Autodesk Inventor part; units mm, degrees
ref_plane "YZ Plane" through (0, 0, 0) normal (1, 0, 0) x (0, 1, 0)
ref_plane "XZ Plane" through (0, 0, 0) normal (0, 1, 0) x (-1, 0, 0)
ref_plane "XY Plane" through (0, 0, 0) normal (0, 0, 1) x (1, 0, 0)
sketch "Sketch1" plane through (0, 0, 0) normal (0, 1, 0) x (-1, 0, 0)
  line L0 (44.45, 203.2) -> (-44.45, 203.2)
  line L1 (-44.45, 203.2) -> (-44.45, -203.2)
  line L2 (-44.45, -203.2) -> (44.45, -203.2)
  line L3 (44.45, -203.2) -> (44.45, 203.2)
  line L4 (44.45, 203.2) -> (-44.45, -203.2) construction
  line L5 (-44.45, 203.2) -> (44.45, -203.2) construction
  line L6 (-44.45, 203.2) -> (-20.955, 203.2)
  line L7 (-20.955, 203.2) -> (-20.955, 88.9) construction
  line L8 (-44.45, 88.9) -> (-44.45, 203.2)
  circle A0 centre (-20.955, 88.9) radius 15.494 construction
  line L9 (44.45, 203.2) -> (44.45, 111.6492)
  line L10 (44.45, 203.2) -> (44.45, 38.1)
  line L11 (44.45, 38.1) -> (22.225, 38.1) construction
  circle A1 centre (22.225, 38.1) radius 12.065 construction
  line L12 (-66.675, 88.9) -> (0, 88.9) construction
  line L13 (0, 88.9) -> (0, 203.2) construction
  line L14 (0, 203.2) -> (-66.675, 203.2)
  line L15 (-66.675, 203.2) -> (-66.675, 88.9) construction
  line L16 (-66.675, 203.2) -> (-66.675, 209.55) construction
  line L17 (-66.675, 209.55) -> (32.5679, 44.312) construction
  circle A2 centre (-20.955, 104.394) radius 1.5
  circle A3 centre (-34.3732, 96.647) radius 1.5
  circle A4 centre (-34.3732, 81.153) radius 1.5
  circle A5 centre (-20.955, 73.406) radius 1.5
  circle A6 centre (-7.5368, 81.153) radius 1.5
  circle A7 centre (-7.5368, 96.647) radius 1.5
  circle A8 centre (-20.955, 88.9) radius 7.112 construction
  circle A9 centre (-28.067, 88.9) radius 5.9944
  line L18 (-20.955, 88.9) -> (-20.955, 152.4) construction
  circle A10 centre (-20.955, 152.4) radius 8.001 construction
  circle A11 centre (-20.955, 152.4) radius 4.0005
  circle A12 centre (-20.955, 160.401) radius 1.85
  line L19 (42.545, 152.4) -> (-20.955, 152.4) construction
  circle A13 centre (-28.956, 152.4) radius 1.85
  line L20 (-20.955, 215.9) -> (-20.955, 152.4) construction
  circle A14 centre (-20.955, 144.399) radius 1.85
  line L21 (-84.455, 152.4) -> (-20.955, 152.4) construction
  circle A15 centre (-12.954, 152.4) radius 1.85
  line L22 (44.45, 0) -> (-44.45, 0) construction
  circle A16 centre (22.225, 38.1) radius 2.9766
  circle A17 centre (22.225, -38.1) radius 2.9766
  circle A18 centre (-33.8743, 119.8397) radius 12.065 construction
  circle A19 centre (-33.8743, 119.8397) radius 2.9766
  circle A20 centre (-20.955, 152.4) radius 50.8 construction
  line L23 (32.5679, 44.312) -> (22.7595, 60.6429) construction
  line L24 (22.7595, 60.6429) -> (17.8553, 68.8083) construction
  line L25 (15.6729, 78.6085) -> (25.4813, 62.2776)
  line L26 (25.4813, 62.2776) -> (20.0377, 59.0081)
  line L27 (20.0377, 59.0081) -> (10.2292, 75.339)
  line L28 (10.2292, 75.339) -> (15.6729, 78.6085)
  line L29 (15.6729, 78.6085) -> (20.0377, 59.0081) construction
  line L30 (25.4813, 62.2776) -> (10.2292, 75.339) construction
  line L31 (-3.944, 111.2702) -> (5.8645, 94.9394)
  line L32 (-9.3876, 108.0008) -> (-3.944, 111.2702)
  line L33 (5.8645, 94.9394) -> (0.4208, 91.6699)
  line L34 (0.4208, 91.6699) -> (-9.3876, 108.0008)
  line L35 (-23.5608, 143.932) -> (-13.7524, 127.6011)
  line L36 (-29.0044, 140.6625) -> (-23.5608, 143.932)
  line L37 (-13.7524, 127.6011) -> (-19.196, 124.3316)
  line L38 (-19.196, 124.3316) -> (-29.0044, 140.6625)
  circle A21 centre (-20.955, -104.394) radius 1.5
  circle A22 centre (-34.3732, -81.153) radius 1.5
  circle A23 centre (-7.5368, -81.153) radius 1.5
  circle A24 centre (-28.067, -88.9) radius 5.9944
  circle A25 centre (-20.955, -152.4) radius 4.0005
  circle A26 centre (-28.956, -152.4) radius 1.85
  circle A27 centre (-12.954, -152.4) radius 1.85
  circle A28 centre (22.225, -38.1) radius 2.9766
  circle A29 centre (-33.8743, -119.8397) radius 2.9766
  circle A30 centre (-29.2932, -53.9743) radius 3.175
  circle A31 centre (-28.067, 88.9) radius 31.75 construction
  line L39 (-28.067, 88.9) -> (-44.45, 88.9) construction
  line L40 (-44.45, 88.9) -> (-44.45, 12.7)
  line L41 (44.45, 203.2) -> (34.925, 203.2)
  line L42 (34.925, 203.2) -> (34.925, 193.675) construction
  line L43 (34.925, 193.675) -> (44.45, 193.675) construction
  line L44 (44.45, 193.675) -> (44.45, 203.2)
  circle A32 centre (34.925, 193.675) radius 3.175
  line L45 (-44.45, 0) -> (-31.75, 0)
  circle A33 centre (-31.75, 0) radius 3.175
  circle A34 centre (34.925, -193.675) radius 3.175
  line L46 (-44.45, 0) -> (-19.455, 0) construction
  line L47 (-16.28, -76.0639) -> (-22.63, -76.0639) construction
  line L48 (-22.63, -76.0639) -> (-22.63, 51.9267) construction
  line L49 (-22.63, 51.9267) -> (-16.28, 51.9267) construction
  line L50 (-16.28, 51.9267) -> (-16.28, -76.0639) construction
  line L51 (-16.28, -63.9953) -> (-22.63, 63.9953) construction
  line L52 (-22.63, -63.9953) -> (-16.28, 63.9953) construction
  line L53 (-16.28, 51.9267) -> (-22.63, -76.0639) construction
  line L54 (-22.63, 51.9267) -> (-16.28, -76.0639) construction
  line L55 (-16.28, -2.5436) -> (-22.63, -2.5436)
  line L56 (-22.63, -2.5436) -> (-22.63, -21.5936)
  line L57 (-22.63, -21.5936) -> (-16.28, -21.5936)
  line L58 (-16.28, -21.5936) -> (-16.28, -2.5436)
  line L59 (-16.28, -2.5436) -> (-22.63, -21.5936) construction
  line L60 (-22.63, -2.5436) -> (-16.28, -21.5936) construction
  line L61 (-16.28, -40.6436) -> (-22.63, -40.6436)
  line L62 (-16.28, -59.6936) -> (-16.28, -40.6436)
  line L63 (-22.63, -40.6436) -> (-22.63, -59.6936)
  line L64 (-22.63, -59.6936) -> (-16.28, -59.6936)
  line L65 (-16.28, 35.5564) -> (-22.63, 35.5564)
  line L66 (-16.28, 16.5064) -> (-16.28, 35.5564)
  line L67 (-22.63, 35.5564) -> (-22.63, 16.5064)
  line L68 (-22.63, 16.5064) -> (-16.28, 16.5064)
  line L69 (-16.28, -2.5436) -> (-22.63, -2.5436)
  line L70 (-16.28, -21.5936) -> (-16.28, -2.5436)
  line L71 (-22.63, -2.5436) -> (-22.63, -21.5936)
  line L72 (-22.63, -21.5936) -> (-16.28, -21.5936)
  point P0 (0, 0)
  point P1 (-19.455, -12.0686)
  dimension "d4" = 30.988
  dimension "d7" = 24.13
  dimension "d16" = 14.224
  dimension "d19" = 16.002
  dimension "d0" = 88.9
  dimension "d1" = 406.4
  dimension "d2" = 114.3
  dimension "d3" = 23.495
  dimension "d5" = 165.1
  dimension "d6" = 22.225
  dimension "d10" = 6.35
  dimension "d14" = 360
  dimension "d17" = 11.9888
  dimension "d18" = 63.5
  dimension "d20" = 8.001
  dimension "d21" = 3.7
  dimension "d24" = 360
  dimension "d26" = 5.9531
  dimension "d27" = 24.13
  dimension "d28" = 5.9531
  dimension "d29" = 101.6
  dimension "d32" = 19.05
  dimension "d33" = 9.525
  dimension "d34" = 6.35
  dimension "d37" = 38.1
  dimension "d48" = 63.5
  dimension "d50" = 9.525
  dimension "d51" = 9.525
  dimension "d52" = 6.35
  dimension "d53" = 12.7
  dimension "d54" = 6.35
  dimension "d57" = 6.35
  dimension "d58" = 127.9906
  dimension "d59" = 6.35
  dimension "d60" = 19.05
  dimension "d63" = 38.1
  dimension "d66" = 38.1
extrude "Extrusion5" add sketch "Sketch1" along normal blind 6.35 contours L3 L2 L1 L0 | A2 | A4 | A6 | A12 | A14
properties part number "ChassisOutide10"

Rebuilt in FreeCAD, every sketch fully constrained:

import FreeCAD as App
import Part
import Sketcher
Q = App.Units.Quantity

doc = App.newDocument("Part")
body = doc.addObject("PartDesign::Body", "Body")

# Sketch on XZ plane
sketch1 = body.newObject("Sketcher::SketchObject", "Sketch")
sketch1.AttachmentSupport = (doc.getObject("XZ_Plane"), [""])
sketch1.MapMode = "FlatFace"
sketch1.addGeometry(Part.LineSegment(App.Vector(-44.5, 203.2, 0), App.Vector(44.5, 203.2, 0)), False)
sketch1.addGeometry(Part.LineSegment(App.Vector(44.5, 203.2, 0), App.Vector(44.5, 0, 0)), False)
sketch1.addGeometry(Part.LineSegment(App.Vector(44.5, 0, 0), App.Vector(44.5, -203.2, 0)), False)
sketch1.addGeometry(Part.LineSegment(App.Vector(44.5, -203.2, 0), App.Vector(-44.5, -203.2, 0)), False)
sketch1.addGeometry(Part.LineSegment(App.Vector(-44.5, -203.2, 0), App.Vector(-44.5, 203.2, 0)), False)
sketch1.addGeometry(Part.Circle(App.Vector(29, -152.4, 0), App.Vector(0, 0, 1), 1.9), False)
sketch1.addGeometry(Part.Circle(App.Vector(33.9, -119.8, 0), App.Vector(0, 0, 1), 3), False)
sketch1.addGeometry(Part.Circle(App.Vector(21, -152.4, 0), App.Vector(0, 0, 1), 4), False)
sketch1.addGeometry(Part.Circle(App.Vector(13, -152.4, 0), App.Vector(0, 0, 1), 1.9), False)
sketch1.addGeometry(Part.Circle(App.Vector(21, -104.4, 0), App.Vector(0, 0, 1), 1.5), False)
sketch1.addGeometry(Part.Circle(App.Vector(34.4, -81.2, 0), App.Vector(0, 0, 1), 1.5), False)
sketch1.addGeometry(Part.Circle(App.Vector(28.1, -88.9, 0), App.Vector(0, 0, 1), 6), False)
sketch1.addGeometry(Part.Circle(App.Vector(29.3, -54, 0), App.Vector(0, 0, 1), 3.2), False)
sketch1.addGeometry(Part.Circle(App.Vector(31.8, 0, 0), App.Vector(0, 0, 1), 3.2), False)
sketch1.addGeometry(Part.Circle(App.Vector(7.5, -81.2, 0), App.Vector(0, 0, 1), 1.5), False)
sketch1.addGeometry(Part.LineSegment(App.Vector(22.6, -40.6, 0), App.Vector(16.3, -40.6, 0)), False)
sketch1.addGeometry(Part.LineSegment(App.Vector(16.3, -40.6, 0), App.Vector(16.3, -59.7, 0)), False)
sketch1.addGeometry(Part.LineSegment(App.Vector(16.3, -59.7, 0), App.Vector(22.6, -59.7, 0)), False)
sketch1.addGeometry(Part.LineSegment(App.Vector(22.6, -59.7, 0), App.Vector(22.6, -40.6, 0)), False)
sketch1.addGeometry(Part.LineSegment(App.Vector(22.6, -2.5, 0), App.Vector(16.3, -2.5, 0)), False)
sketch1.addGeometry(Part.LineSegment(App.Vector(16.3, -2.5, 0), App.Vector(16.3, -21.6, 0)), False)
sketch1.addGeometry(Part.LineSegment(App.Vector(16.3, -21.6, 0), App.Vector(22.6, -21.6, 0)), False)
sketch1.addGeometry(Part.LineSegment(App.Vector(22.6, -21.6, 0), App.Vector(22.6, -2.5, 0)), False)
sketch1.addGeometry(Part.Circle(App.Vector(-34.9, -193.7, 0), App.Vector(0, 0, 1), 3.2), False)
sketch1.addGeometry(Part.Circle(App.Vector(-22.2, -38.1, 0), App.Vector(0, 0, 1), 3), False)
sketch1.addGeometry(Part.Circle(App.Vector(34.4, 96.6, 0), App.Vector(0, 0, 1), 1.5), False)
sketch1.addGeometry(Part.Circle(App.Vector(28.1, 88.9, 0), App.Vector(0, 0, 1), 6), False)
sketch1.addGeometry(Part.LineSegment(App.Vector(22.6, 35.6, 0), App.Vector(16.3, 35.6, 0)), False)
sketch1.addGeometry(Part.LineSegment(App.Vector(16.3, 35.6, 0), App.Vector(16.3, 16.5, 0)), False)
sketch1.addGeometry(Part.LineSegment(App.Vector(16.3, 16.5, 0), App.Vector(22.6, 16.5, 0)), False)
sketch1.addGeometry(Part.LineSegment(App.Vector(22.6, 16.5, 0), App.Vector(22.6, 35.6, 0)), False)
sketch1.addGeometry(Part.Circle(App.Vector(21, 73.4, 0), App.Vector(0, 0, 1), 1.5), False)
sketch1.addGeometry(Part.Circle(App.Vector(7.5, 96.6, 0), App.Vector(0, 0, 1), 1.5), False)
sketch1.addGeometry(Part.LineSegment(App.Vector(9.4, 108, 0), App.Vector(3.9, 111.3, 0)), False)
sketch1.addGeometry(Part.LineSegment(App.Vector(3.9, 111.3, 0), App.Vector(-5.9, 94.9, 0)), False)
sketch1.addGeometry(Part.LineSegment(App.Vector(-5.9, 94.9, 0), App.Vector(-0.4, 91.7, 0)), False)
sketch1.addGeometry(Part.LineSegment(App.Vector(-0.4, 91.7, 0), App.Vector(9.4, 108, 0)), False)
sketch1.addGeometry(Part.Circle(App.Vector(33.9, 119.8, 0), App.Vector(0, 0, 1), 3), False)
sketch1.addGeometry(Part.Circle(App.Vector(29, 152.4, 0), App.Vector(0, 0, 1), 1.9), False)
sketch1.addGeometry(Part.LineSegment(App.Vector(29, 140.7, 0), App.Vector(23.6, 143.9, 0)), False)
sketch1.addGeometry(Part.LineSegment(App.Vector(23.6, 143.9, 0), App.Vector(13.8, 127.6, 0)), False)
sketch1.addGeometry(Part.LineSegment(App.Vector(13.8, 127.6, 0), App.Vector(19.2, 124.3, 0)), False)
sketch1.addGeometry(Part.LineSegment(App.Vector(19.2, 124.3, 0), App.Vector(29, 140.7, 0)), False)
sketch1.addGeometry(Part.Circle(App.Vector(21, 152.4, 0), App.Vector(0, 0, 1), 4), False)
sketch1.addGeometry(Part.Circle(App.Vector(13, 152.4, 0), App.Vector(0, 0, 1), 1.9), False)
sketch1.addGeometry(Part.LineSegment(App.Vector(-10.2, 75.3, 0), App.Vector(-15.7, 78.6, 0)), False)
sketch1.addGeometry(Part.LineSegment(App.Vector(-15.7, 78.6, 0), App.Vector(-25.5, 62.3, 0)), False)
sketch1.addGeometry(Part.LineSegment(App.Vector(-25.5, 62.3, 0), App.Vector(-20, 59, 0)), False)
sketch1.addGeometry(Part.LineSegment(App.Vector(-20, 59, 0), App.Vector(-10.2, 75.3, 0)), False)
sketch1.addGeometry(Part.Circle(App.Vector(-22.2, 38.1, 0), App.Vector(0, 0, 1), 3), False)
sketch1.addGeometry(Part.Circle(App.Vector(-34.9, 193.7, 0), App.Vector(0, 0, 1), 3.2), False)
sketch1.addConstraint(Sketcher.Constraint("Coincident", 0, 2, 1, 1))
sketch1.addConstraint(Sketcher.Constraint("Coincident", 1, 2, 2, 1))
sketch1.addConstraint(Sketcher.Constraint("Coincident", 2, 2, 3, 1))
sketch1.addConstraint(Sketcher.Constraint("Coincident", 3, 2, 4, 1))
sketch1.addConstraint(Sketcher.Constraint("Coincident", 4, 2, 0, 1))
sketch1.addConstraint(Sketcher.Constraint("Coincident", 15, 2, 16, 1))
sketch1.addConstraint(Sketcher.Constraint("Coincident", 16, 2, 17, 1))
sketch1.addConstraint(Sketcher.Constraint("Coincident", 17, 2, 18, 1))
sketch1.addConstraint(Sketcher.Constraint("Coincident", 18, 2, 15, 1))
sketch1.addConstraint(Sketcher.Constraint("Coincident", 19, 2, 20, 1))
sketch1.addConstraint(Sketcher.Constraint("Coincident", 20, 2, 21, 1))
sketch1.addConstraint(Sketcher.Constraint("Coincident", 21, 2, 22, 1))
sketch1.addConstraint(Sketcher.Constraint("Coincident", 22, 2, 19, 1))
sketch1.addConstraint(Sketcher.Constraint("Coincident", 27, 2, 28, 1))
sketch1.addConstraint(Sketcher.Constraint("Coincident", 28, 2, 29, 1))
sketch1.addConstraint(Sketcher.Constraint("Coincident", 29, 2, 30, 1))
sketch1.addConstraint(Sketcher.Constraint("Coincident", 30, 2, 27, 1))
sketch1.addConstraint(Sketcher.Constraint("Coincident", 33, 2, 34, 1))
sketch1.addConstraint(Sketcher.Constraint("Coincident", 34, 2, 35, 1))
sketch1.addConstraint(Sketcher.Constraint("Coincident", 35, 2, 36, 1))
sketch1.addConstraint(Sketcher.Constraint("Coincident", 36, 2, 33, 1))
sketch1.addConstraint(Sketcher.Constraint("Coincident", 39, 2, 40, 1))
sketch1.addConstraint(Sketcher.Constraint("Coincident", 40, 2, 41, 1))
sketch1.addConstraint(Sketcher.Constraint("Coincident", 41, 2, 42, 1))
sketch1.addConstraint(Sketcher.Constraint("Coincident", 42, 2, 39, 1))
sketch1.addConstraint(Sketcher.Constraint("Coincident", 45, 2, 46, 1))
sketch1.addConstraint(Sketcher.Constraint("Coincident", 46, 2, 47, 1))
sketch1.addConstraint(Sketcher.Constraint("Coincident", 47, 2, 48, 1))
sketch1.addConstraint(Sketcher.Constraint("Coincident", 48, 2, 45, 1))
sketch1.addConstraint(Sketcher.Constraint("Horizontal", 0))
sketch1.addConstraint(Sketcher.Constraint("Vertical", 1))
sketch1.addConstraint(Sketcher.Constraint("Vertical", 2))
sketch1.addConstraint(Sketcher.Constraint("Horizontal", 3))
sketch1.addConstraint(Sketcher.Constraint("Vertical", 4))
sketch1.addConstraint(Sketcher.Constraint("Horizontal", 15))
sketch1.addConstraint(Sketcher.Constraint("Vertical", 16))
sketch1.addConstraint(Sketcher.Constraint("Horizontal", 17))
sketch1.addConstraint(Sketcher.Constraint("Vertical", 18))
sketch1.addConstraint(Sketcher.Constraint("Horizontal", 19))
sketch1.addConstraint(Sketcher.Constraint("Vertical", 20))
sketch1.addConstraint(Sketcher.Constraint("Horizontal", 21))
sketch1.addConstraint(Sketcher.Constraint("Vertical", 22))
sketch1.addConstraint(Sketcher.Constraint("Horizontal", 27))
sketch1.addConstraint(Sketcher.Constraint("Vertical", 28))
sketch1.addConstraint(Sketcher.Constraint("Horizontal", 29))
sketch1.addConstraint(Sketcher.Constraint("Vertical", 30))
sketch1.addConstraint(Sketcher.Constraint("Equal", 5, 8))
sketch1.addConstraint(Sketcher.Constraint("Equal", 9, 10))
sketch1.addConstraint(Sketcher.Constraint("Equal", 12, 13))
sketch1.addConstraint(Sketcher.Constraint("Equal", 10, 14))
sketch1.addConstraint(Sketcher.Constraint("Equal", 13, 23))
sketch1.addConstraint(Sketcher.Constraint("Equal", 6, 24))
sketch1.addConstraint(Sketcher.Constraint("Equal", 14, 25))
sketch1.addConstraint(Sketcher.Constraint("Equal", 11, 26))
sketch1.addConstraint(Sketcher.Constraint("Equal", 25, 31))
sketch1.addConstraint(Sketcher.Constraint("Equal", 31, 32))
sketch1.addConstraint(Sketcher.Constraint("Equal", 24, 37))
sketch1.addConstraint(Sketcher.Constraint("Equal", 8, 38))
sketch1.addConstraint(Sketcher.Constraint("Equal", 7, 43))
sketch1.addConstraint(Sketcher.Constraint("Equal", 38, 44))
sketch1.addConstraint(Sketcher.Constraint("Equal", 37, 49))
sketch1.addConstraint(Sketcher.Constraint("Equal", 23, 50))
sketch1.addConstraint(Sketcher.Constraint("Symmetric", 0, 2, 3, 2, -1, 1))
sketch1.addConstraint(Sketcher.Constraint("Symmetric", 11, 3, 26, 3, -1))
sketch1.addConstraint(Sketcher.Constraint("Symmetric", 6, 3, 37, 3, -1))
sketch1.addConstraint(Sketcher.Constraint("Symmetric", 5, 3, 38, 3, -1))
sketch1.addConstraint(Sketcher.Constraint("Symmetric", 7, 3, 43, 3, -1))
sketch1.addConstraint(Sketcher.Constraint("Symmetric", 8, 3, 44, 3, -1))
sketch1.addConstraint(Sketcher.Constraint("Symmetric", 24, 3, 49, 3, -1))
sketch1.addConstraint(Sketcher.Constraint("Symmetric", 23, 3, 50, 3, -1))
sketch1.addConstraint(Sketcher.Constraint("PointOnObject", 13, 3, -1))
sketch1.addConstraint(Sketcher.Constraint("PointOnObject", 1, 2, -1))
sketch1.addConstraint(Sketcher.Constraint("Perpendicular", 33, 34))
sketch1.addConstraint(Sketcher.Constraint("Perpendicular", 34, 35))
sketch1.addConstraint(Sketcher.Constraint("Perpendicular", 35, 36))
sketch1.addConstraint(Sketcher.Constraint("Perpendicular", 36, 39))
sketch1.addConstraint(Sketcher.Constraint("Perpendicular", 39, 40))
sketch1.addConstraint(Sketcher.Constraint("Perpendicular", 40, 41))
sketch1.addConstraint(Sketcher.Constraint("Perpendicular", 41, 42))
sketch1.addConstraint(Sketcher.Constraint("Perpendicular", 42, 45))
sketch1.addConstraint(Sketcher.Constraint("Perpendicular", 45, 46))
sketch1.addConstraint(Sketcher.Constraint("Perpendicular", 46, 47))
sketch1.addConstraint(Sketcher.Constraint("Perpendicular", 47, 48))
sketch1.addConstraint(Sketcher.Constraint("Horizontal", 5, 3, 7, 3))
sketch1.addConstraint(Sketcher.Constraint("Horizontal", 7, 3, 8, 3))
sketch1.addConstraint(Sketcher.Constraint("Horizontal", 10, 3, 14, 3))
sketch1.addConstraint(Sketcher.Constraint("Horizontal", 25, 3, 32, 3))
sketch1.addConstraint(Sketcher.Constraint("Vertical", 7, 3, 9, 3))
sketch1.addConstraint(Sketcher.Constraint("Vertical", 10, 3, 25, 3))
sketch1.addConstraint(Sketcher.Constraint("Vertical", 9, 3, 31, 3))
sketch1.addConstraint(Sketcher.Constraint("Vertical", 14, 3, 32, 3))
sketch1.addConstraint(Sketcher.Constraint("Vertical", 16, 2, 19, 2))
sketch1.addConstraint(Sketcher.Constraint("Vertical", 18, 2, 21, 2))
sketch1.addConstraint(Sketcher.Constraint("Vertical", 20, 2, 27, 2))
sketch1.addConstraint(Sketcher.Constraint("Vertical", 22, 2, 29, 2))
sketch1.addConstraint(Sketcher.Constraint("Equal", 18, 20))
sketch1.addConstraint(Sketcher.Constraint("Equal", 22, 28))
sketch1.addConstraint(Sketcher.Constraint("Equal", 35, 39))
sketch1.addConstraint(Sketcher.Constraint("Equal", 36, 40))
sketch1.addConstraint(Sketcher.Constraint("Equal", 41, 45))
sketch1.addConstraint(Sketcher.Constraint("Equal", 42, 46))
sketch1.addConstraint(Sketcher.Constraint("Diameter", 12, Q("0.25 in")))
sketch1.addConstraint(Sketcher.Constraint("DistanceY", 4, 1, 4, 2, Q("16 in")))
sketch1.addConstraint(Sketcher.Constraint("Diameter", 6, Q("0.234378 in")))
sketch1.addConstraint(Sketcher.Constraint("Diameter", 7, Q("0.315 in")))
sketch1.addConstraint(Sketcher.Constraint("Diameter", 11, Q("0.472 in")))
sketch1.addConstraint(Sketcher.Constraint("DistanceX", 0, 1, 0, 2, Q("3.5 in")))
sketch1.addConstraint(Sketcher.Constraint("DistanceX", 15, 2, 15, 1, Q("0.25 in")))
sketch1.addConstraint(Sketcher.Constraint("DistanceY", 16, 2, 16, 1, Q("0.75 in")))
sketch1.addConstraint(Sketcher.Constraint("DistanceY", 11, 3, -1, 1, Q("3.5 in")))
sketch1.addConstraint(Sketcher.Constraint("DistanceY", 24, 3, -1, 1, Q("1.5 in")))
sketch1.addConstraint(Sketcher.Constraint("DistanceY", 5, 3, 11, 3, Q("2.5 in")))
sketch1.addConstraint(Sketcher.Constraint("DistanceX", 13, 3, 1, 2, Q("0.5 in")))
sketch1.addConstraint(Sketcher.Constraint("DistanceY", 15, 2, 19, 2, Q("1.5 in")))
sketch1.addConstraint(Sketcher.Constraint("DistanceY", 19, 2, 27, 2, Q("1.5 in")))
sketch1.addConstraint(Sketcher.Constraint("Distance", 33, Q("0.25 in")))
sketch1.addConstraint(Sketcher.Constraint("Distance", 34, Q("0.75 in")))
sketch1.addConstraint(Sketcher.Constraint("Diameter", 5, Q("3.7 mm")))
sketch1.addConstraint(Sketcher.Constraint("DistanceX", 8, 3, 5, 3, Q("0.63 in")))
sketch1.addConstraint(Sketcher.Constraint("DistanceX", 24, 3, -1, 1, Q("0.875 in")))
sketch1.addConstraint(Sketcher.Constraint("DistanceX", 7, 3, 5, 3, Q("0.315 in")))
sketch1.addConstraint(Sketcher.Constraint("DistanceY", 10, 3, 25, 3, Q("7 in")))
sketch1.addConstraint(Sketcher.Constraint("DistanceX", 43, 3, 0, 2, Q("0.925 in")))
sketch1.addConstraint(Sketcher.Constraint("DistanceY", 50, 3, 0, 2, Q("0.375 in")))
sketch1.addConstraint(Sketcher.Constraint("DistanceX", 3, 2, 23, 3, Q("0.375 in")))
sketch1.addConstraint(Sketcher.Constraint("Diameter", 9, Q("0.1181 in")))
sketch1.addConstraint(Sketcher.Constraint("DistanceX", 12, 3, 10, 3, Q("0.2 in")))
sketch1.addConstraint(Sketcher.Constraint("DistanceY", 9, 3, -1, 1, Q("4.11 in")))
sketch1.addConstraint(Sketcher.Constraint("DistanceY", -1, 1, 31, 3, Q("2.89 in")))
sketch1.addConstraint(Sketcher.Constraint("Angle", 33, Q("149.0112 deg")))
sketch1.addConstraint(Sketcher.Constraint("DistanceX", 9, 3, 11, 3, Q("0.28 in")))
sketch1.addConstraint(Sketcher.Constraint("DistanceY", 32, 3, 50, 3, Q("3.82 in")))
sketch1.addConstraint(Sketcher.Constraint("DistanceY", -1, 1, 36, 2, Q("4.252 in")))
sketch1.addConstraint(Sketcher.Constraint("DistanceX", 33, 2, 25, 3, Q("1.198 in")))
sketch1.addConstraint(Sketcher.Constraint("DistanceX", 47, 2, 34, 2, Q("0.558 in")))
sketch1.addConstraint(Sketcher.Constraint("DistanceY", 6, 3, -1, 1, Q("4.7181 in")))
sketch1.addConstraint(Sketcher.Constraint("DistanceX", -1, 1, 36, 2, Q("0.3696 in")))
sketch1.addConstraint(Sketcher.Constraint("DistanceX", -1, 1, 39, 2, Q("0.9276 in")))
sketch1.addConstraint(Sketcher.Constraint("DistanceY", -1, 1, 42, 2, Q("5.5379 in")))
sketch1.addConstraint(Sketcher.Constraint("DistanceY", -1, 1, 48, 2, Q("2.9661 in")))
sketch1.addConstraint(Sketcher.Constraint("DistanceX", 14, 3, 6, 3, Q("1.0369 in")))
sketch1.addConstraint(Sketcher.Constraint("DistanceX", 34, 2, 32, 3, Q("0.5276 in")))
sketch1.addConstraint(Sketcher.Constraint("DistanceY", 12, 3, -1, 1, Q("53.9743 mm")))
sketch1.addConstraint(Sketcher.Constraint("DistanceX", -1, 1, 15, 2, Q("16.28 mm")))
sketch1.addConstraint(Sketcher.Constraint("DistanceY", 15, 2, -1, 1, Q("40.6436 mm")))
pad1 = body.newObject("PartDesign::Pad", "Pad")
pad1.Profile = sketch1
pad1.Length = Q("0.25 in")
pad1.Reversed = True

doc.recompute()
